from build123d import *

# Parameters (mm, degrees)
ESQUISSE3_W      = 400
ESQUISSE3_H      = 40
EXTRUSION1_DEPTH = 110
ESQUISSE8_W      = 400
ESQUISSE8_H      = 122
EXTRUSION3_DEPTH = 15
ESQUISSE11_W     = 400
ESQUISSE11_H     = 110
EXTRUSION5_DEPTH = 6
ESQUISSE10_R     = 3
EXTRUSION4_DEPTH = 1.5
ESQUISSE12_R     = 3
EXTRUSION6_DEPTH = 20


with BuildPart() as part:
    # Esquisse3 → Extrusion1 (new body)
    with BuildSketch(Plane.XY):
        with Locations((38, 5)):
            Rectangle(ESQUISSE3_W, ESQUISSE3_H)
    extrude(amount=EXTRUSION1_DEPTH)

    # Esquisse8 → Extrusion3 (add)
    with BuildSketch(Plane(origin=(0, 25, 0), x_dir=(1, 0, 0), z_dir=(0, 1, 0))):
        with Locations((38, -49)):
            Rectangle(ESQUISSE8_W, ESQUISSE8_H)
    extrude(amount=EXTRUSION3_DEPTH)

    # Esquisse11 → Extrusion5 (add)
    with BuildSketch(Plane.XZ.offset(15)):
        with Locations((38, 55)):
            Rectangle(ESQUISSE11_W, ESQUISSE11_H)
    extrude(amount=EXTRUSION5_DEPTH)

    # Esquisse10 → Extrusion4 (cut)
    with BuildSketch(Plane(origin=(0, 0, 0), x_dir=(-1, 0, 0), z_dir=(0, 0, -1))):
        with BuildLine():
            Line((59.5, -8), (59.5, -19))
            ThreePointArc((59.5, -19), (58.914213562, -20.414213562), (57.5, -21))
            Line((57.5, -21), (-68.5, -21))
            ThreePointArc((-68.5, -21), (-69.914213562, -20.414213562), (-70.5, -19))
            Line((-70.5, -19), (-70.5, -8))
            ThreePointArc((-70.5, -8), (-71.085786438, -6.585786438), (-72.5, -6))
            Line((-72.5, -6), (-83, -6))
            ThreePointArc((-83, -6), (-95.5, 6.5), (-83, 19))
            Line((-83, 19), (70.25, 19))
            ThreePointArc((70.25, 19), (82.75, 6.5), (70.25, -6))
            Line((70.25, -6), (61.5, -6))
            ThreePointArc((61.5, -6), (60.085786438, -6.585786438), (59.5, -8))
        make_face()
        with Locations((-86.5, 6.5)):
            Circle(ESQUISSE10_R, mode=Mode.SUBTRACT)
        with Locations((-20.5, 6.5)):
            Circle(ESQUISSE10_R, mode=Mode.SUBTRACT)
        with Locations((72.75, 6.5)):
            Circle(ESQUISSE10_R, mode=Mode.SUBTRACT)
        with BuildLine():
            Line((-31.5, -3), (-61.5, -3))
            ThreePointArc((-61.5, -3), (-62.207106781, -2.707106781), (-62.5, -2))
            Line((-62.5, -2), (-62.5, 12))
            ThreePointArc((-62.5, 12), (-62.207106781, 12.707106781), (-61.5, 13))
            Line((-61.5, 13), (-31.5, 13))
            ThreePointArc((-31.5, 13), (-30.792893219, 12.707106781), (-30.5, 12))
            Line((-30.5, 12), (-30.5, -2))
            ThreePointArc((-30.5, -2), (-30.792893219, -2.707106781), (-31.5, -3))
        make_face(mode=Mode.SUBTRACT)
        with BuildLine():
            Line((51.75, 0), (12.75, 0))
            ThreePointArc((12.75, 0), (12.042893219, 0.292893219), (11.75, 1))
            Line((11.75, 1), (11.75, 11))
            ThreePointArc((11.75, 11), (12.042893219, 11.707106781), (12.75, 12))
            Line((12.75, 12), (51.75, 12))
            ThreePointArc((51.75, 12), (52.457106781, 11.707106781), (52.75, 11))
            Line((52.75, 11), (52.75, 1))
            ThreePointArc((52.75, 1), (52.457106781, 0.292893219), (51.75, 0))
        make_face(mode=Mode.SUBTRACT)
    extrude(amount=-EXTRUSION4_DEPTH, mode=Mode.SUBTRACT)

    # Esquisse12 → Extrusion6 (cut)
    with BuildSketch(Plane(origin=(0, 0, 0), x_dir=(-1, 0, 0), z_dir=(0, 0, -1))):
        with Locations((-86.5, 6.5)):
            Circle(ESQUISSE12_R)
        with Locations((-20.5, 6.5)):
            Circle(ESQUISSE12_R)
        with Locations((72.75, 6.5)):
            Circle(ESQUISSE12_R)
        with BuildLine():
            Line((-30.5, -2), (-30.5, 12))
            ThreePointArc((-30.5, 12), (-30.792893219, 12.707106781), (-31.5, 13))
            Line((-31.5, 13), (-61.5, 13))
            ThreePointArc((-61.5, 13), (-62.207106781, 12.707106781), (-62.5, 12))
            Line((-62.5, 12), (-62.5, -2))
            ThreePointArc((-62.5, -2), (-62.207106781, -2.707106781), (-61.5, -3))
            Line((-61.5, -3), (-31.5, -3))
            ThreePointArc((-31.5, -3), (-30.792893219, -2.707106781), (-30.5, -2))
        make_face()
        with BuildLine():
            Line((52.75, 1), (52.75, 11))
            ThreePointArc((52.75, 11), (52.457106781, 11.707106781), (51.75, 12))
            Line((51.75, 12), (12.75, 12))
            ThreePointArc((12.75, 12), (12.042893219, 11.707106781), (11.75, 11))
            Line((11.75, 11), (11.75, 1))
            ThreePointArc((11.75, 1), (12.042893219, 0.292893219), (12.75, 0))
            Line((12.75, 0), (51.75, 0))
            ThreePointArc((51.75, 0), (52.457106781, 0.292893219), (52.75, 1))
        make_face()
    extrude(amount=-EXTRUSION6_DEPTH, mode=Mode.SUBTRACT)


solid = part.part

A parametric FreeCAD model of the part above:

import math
import FreeCAD as App
import Part
import Sketcher
Q = App.Units.Quantity


def add_polygon(sketch, points):
    """Adds a closed chain of lines whose ends are joined by coincident constraints."""
    first, n = sketch.GeometryCount, len(points)
    for a, b in zip(points, points[1:] + points[:1]):
        sketch.addGeometry(Part.LineSegment(App.Vector(*a, 0), App.Vector(*b, 0)), False)
    for i in range(n):
        sketch.addConstraint(Sketcher.Constraint("Coincident", first + i, 2, first + (i + 1) % n, 1))

doc = App.newDocument("Part")
body = doc.addObject("PartDesign::Body", "Body")

# Sketch on XY plane
sketch1 = body.newObject("Sketcher::SketchObject", "Sketch")
sketch1.AttachmentSupport = (doc.getObject("XY_Plane"), [""])
sketch1.MapMode = "FlatFace"
add_polygon(sketch1, [(-162, 25), (-162, -15), (238, -15), (238, 25)])  # lines 0-3
sketch1.addConstraint([
    Sketcher.Constraint("Vertical", 0),
    Sketcher.Constraint("Horizontal", 1),
    Sketcher.Constraint("Vertical", 2),
    Sketcher.Constraint("Horizontal", 3),
    Sketcher.Constraint("DistanceX", 1, 1, 1, 2, Q("400 mm")),
    Sketcher.Constraint("DistanceY", 0, 2, 0, 1, Q("40 mm")),
    Sketcher.Constraint("DistanceX", 0, 2, -1, 1, Q("162 mm")),
    Sketcher.Constraint("DistanceY", 0, 2, -1, 1, Q("15 mm")),
])
pad1 = body.newObject("PartDesign::Pad", "Pad")
pad1.Profile = sketch1
pad1.Length = 110

# Sketch on XZ plane
sketch2 = body.newObject("Sketcher::SketchObject", "Sketch001")
sketch2.AttachmentSupport = (doc.getObject("XZ_Plane"), [""])
sketch2.MapMode = "FlatFace"
sketch2.AttachmentOffset = App.Placement(App.Vector(0, 0, -25), App.Rotation())
add_polygon(sketch2, [(-162, -12), (-162, 110), (238, 110), (238, -12)])  # lines 0-3
sketch2.addConstraint([
    Sketcher.Constraint("Vertical", 0),
    Sketcher.Constraint("Horizontal", 1),
    Sketcher.Constraint("Vertical", 2),
    Sketcher.Constraint("Horizontal", 3),
    Sketcher.Constraint("DistanceX", 1, 1, 1, 2, Q("400 mm")),
    Sketcher.Constraint("DistanceY", 0, 1, 0, 2, Q("122 mm")),
    Sketcher.Constraint("DistanceX", 0, 2, -1, 1, Q("162 mm")),
    Sketcher.Constraint("DistanceY", -1, 1, 0, 2, Q("110 mm")),
])
pad2 = body.newObject("PartDesign::Pad", "Pad001")
pad2.Profile = sketch2
pad2.Length = 15
pad2.Reversed = True

# Sketch on XZ plane
sketch3 = body.newObject("Sketcher::SketchObject", "Sketch002")
sketch3.AttachmentSupport = (doc.getObject("XZ_Plane"), [""])
sketch3.MapMode = "FlatFace"
sketch3.AttachmentOffset = App.Placement(App.Vector(0, 0, 15), App.Rotation())
add_polygon(sketch3, [(-162, 110), (-162, 0), (238, 0), (238, 110)])  # lines 0-3
sketch3.addConstraint([
    Sketcher.Constraint("Vertical", 0),
    Sketcher.Constraint("Horizontal", 1),
    Sketcher.Constraint("Vertical", 2),
    Sketcher.Constraint("Horizontal", 3),
    Sketcher.Constraint("PointOnObject", 0, 2, -1),
    Sketcher.Constraint("DistanceX", 1, 1, 1, 2, Q("400 mm")),
    Sketcher.Constraint("DistanceY", 0, 2, 0, 1, Q("110 mm")),
    Sketcher.Constraint("DistanceX", 0, 2, -1, 1, Q("162 mm")),
])
pad3 = body.newObject("PartDesign::Pad", "Pad002")
pad3.Profile = sketch3
pad3.Length = 6

# Sketch on XY plane
sketch4 = body.newObject("Sketcher::SketchObject", "Sketch003")
sketch4.AttachmentSupport = (doc.getObject("XY_Plane"), [""])
sketch4.MapMode = "FlatFace"
sketch4.addGeometry([
    Part.LineSegment(App.Vector(-59.5, -19, 0), App.Vector(-59.5, -8, 0)),  # 0
    Part.ArcOfCircle(Part.Circle(App.Vector(-61.5, -8, 0), App.Vector(0, 0, 1), 2), math.radians(0), math.radians(90)),  # 1
    Part.LineSegment(App.Vector(-61.5, -6, 0), App.Vector(-70.25, -6, 0)),  # 2
    Part.ArcOfCircle(Part.Circle(App.Vector(-70.25, 6.5, 0), App.Vector(0, 0, 1), 12.5), math.radians(90), math.radians(270)),  # 3
    Part.LineSegment(App.Vector(-70.25, 19, 0), App.Vector(83, 19, 0)),  # 4
    Part.ArcOfCircle(Part.Circle(App.Vector(83, 6.5, 0), App.Vector(0, 0, 1), 12.5), math.radians(-90), math.radians(90)),  # 5
    Part.LineSegment(App.Vector(83, -6, 0), App.Vector(72.5, -6, 0)),  # 6
    Part.ArcOfCircle(Part.Circle(App.Vector(72.5, -8, 0), App.Vector(0, 0, 1), 2), math.radians(90), math.radians(180)),  # 7
    Part.LineSegment(App.Vector(70.5, -8, 0), App.Vector(70.5, -19, 0)),  # 8
    Part.ArcOfCircle(Part.Circle(App.Vector(68.5, -19, 0), App.Vector(0, 0, 1), 2), math.radians(-90), math.radians(0)),  # 9
    Part.LineSegment(App.Vector(68.5, -21, 0), App.Vector(-57.5, -21, 0)),  # 10
    Part.ArcOfCircle(Part.Circle(App.Vector(-57.5, -19, 0), App.Vector(0, 0, 1), 2), math.radians(-180), math.radians(-90)),  # 11
    Part.Circle(App.Vector(-72.75, 6.5, 0), App.Vector(0, 0, 1), 3),  # 12
    Part.LineSegment(App.Vector(-51.75, 0, 0), App.Vector(-12.75, 0, 0)),  # 13
    Part.ArcOfCircle(Part.Circle(App.Vector(-12.75, 1, 0), App.Vector(0, 0, 1), 1), math.radians(-90), math.radians(0)),  # 14
    Part.LineSegment(App.Vector(-11.75, 1, 0), App.Vector(-11.75, 11, 0)),  # 15
    Part.ArcOfCircle(Part.Circle(App.Vector(-12.75, 11, 0), App.Vector(0, 0, 1), 1), math.radians(0), math.radians(90)),  # 16
    Part.LineSegment(App.Vector(-12.75, 12, 0), App.Vector(-51.75, 12, 0)),  # 17
    Part.ArcOfCircle(Part.Circle(App.Vector(-51.75, 11, 0), App.Vector(0, 0, 1), 1), math.radians(90), math.radians(180)),  # 18
    Part.LineSegment(App.Vector(-52.75, 11, 0), App.Vector(-52.75, 1, 0)),  # 19
    Part.ArcOfCircle(Part.Circle(App.Vector(-51.75, 1, 0), App.Vector(0, 0, 1), 1), math.radians(-180), math.radians(-90)),  # 20
    Part.Circle(App.Vector(20.5, 6.5, 0), App.Vector(0, 0, 1), 3),  # 21
    Part.LineSegment(App.Vector(31.5, -3, 0), App.Vector(61.5, -3, 0)),  # 22
    Part.ArcOfCircle(Part.Circle(App.Vector(61.5, -2, 0), App.Vector(0, 0, 1), 1), math.radians(-90), math.radians(0)),  # 23
    Part.LineSegment(App.Vector(62.5, -2, 0), App.Vector(62.5, 12, 0)),  # 24
    Part.ArcOfCircle(Part.Circle(App.Vector(61.5, 12, 0), App.Vector(0, 0, 1), 1), math.radians(0), math.radians(90)),  # 25
    Part.LineSegment(App.Vector(61.5, 13, 0), App.Vector(31.5, 13, 0)),  # 26
    Part.ArcOfCircle(Part.Circle(App.Vector(31.5, 12, 0), App.Vector(0, 0, 1), 1), math.radians(90), math.radians(180)),  # 27
    Part.LineSegment(App.Vector(30.5, 12, 0), App.Vector(30.5, -2, 0)),  # 28
    Part.ArcOfCircle(Part.Circle(App.Vector(31.5, -2, 0), App.Vector(0, 0, 1), 1), math.radians(-180), math.radians(-90)),  # 29
    Part.Circle(App.Vector(86.5, 6.5, 0), App.Vector(0, 0, 1), 3),  # 30
], False)
sketch4.addConstraint([
    Sketcher.Constraint("Tangent", 0, 2, 1, 1),
    Sketcher.Constraint("Tangent", 1, 2, 2, 1),
    Sketcher.Constraint("Tangent", 2, 2, 3, 2),
    Sketcher.Constraint("Tangent", 3, 1, 4, 1),
    Sketcher.Constraint("Tangent", 4, 2, 5, 2),
    Sketcher.Constraint("Tangent", 5, 1, 6, 1),
    Sketcher.Constraint("Tangent", 6, 2, 7, 1),
    Sketcher.Constraint("Tangent", 7, 2, 8, 1),
    Sketcher.Constraint("Tangent", 8, 2, 9, 2),
    Sketcher.Constraint("Tangent", 9, 1, 10, 1),
    Sketcher.Constraint("Tangent", 10, 2, 11, 2),
    Sketcher.Constraint("Tangent", 11, 1, 0, 1),
    Sketcher.Constraint("Tangent", 13, 2, 14, 1),
    Sketcher.Constraint("Tangent", 14, 2, 15, 1),
    Sketcher.Constraint("Tangent", 15, 2, 16, 1),
    Sketcher.Constraint("Tangent", 16, 2, 17, 1),
    Sketcher.Constraint("Tangent", 17, 2, 18, 1),
    Sketcher.Constraint("Tangent", 18, 2, 19, 1),
    Sketcher.Constraint("Tangent", 19, 2, 20, 1),
    Sketcher.Constraint("Tangent", 20, 2, 13, 1),
    Sketcher.Constraint("Tangent", 22, 2, 23, 1),
    Sketcher.Constraint("Tangent", 23, 2, 24, 1),
    Sketcher.Constraint("Tangent", 24, 2, 25, 1),
    Sketcher.Constraint("Tangent", 25, 2, 26, 1),
    Sketcher.Constraint("Tangent", 26, 2, 27, 1),
    Sketcher.Constraint("Tangent", 27, 2, 28, 1),
    Sketcher.Constraint("Tangent", 28, 2, 29, 1),
    Sketcher.Constraint("Tangent", 29, 2, 22, 1),
    Sketcher.Constraint("Vertical", 0),
    Sketcher.Constraint("Horizontal", 2),
    Sketcher.Constraint("Horizontal", 4),
    Sketcher.Constraint("Horizontal", 6),
    Sketcher.Constraint("Vertical", 8),
    Sketcher.Constraint("Horizontal", 10),
    Sketcher.Constraint("Horizontal", 13),
    Sketcher.Constraint("Vertical", 15),
    Sketcher.Constraint("Horizontal", 17),
    Sketcher.Constraint("Vertical", 19),
    Sketcher.Constraint("Horizontal", 22),
    Sketcher.Constraint("Vertical", 24),
    Sketcher.Constraint("Horizontal", 26),
    Sketcher.Constraint("Vertical", 28),
    Sketcher.Constraint("Equal", 3, 5),
    Sketcher.Constraint("Equal", 1, 7),
    Sketcher.Constraint("Equal", 7, 9),
    Sketcher.Constraint("Equal", 9, 11),
    Sketcher.Constraint("Equal", 14, 16),
    Sketcher.Constraint("Equal", 16, 18),
    Sketcher.Constraint("Equal", 18, 20),
    Sketcher.Constraint("Equal", 12, 21),
    Sketcher.Constraint("Equal", 20, 23),
    Sketcher.Constraint("Equal", 23, 25),
    Sketcher.Constraint("Equal", 25, 27),
    Sketcher.Constraint("Equal", 27, 29),
    Sketcher.Constraint("Equal", 21, 30),
    Sketcher.Constraint("PointOnObject", 13, 2, -1),
    Sketcher.Constraint("Horizontal", 5, 3, 12, 3),
    Sketcher.Constraint("Horizontal", 12, 3, 21, 3),
    Sketcher.Constraint("Horizontal", 21, 3, 30, 3),
    Sketcher.Constraint("Horizontal", 27, 3, 16, 2),
    Sketcher.Constraint("Diameter", 12, Q("6 mm")),
    Sketcher.Constraint("Radius", 1, Q("2 mm")),
    Sketcher.Constraint("Radius", 14, Q("1 mm")),
    Sketcher.Constraint("Radius", 3, Q("12.5 mm")),
    Sketcher.Constraint("DistanceX", 10, 2, 10, 1, Q("126 mm")),
    Sketcher.Constraint("DistanceX", 13, 1, 13, 2, Q("39 mm")),
    Sketcher.Constraint("DistanceX", 22, 1, 22, 2, Q("30 mm")),
    Sketcher.Constraint("DistanceY", 0, 1, 0, 2, Q("11 mm")),
    Sketcher.Constraint("DistanceY", 15, 1, 15, 2, Q("10 mm")),
    Sketcher.Constraint("DistanceY", 24, 1, 24, 2, Q("14 mm")),
    Sketcher.Constraint("DistanceX", 6, 2, 6, 1, Q("10.5 mm")),
    Sketcher.Constraint("DistanceY", 1, 3, -1, 1, Q("8 mm")),
    Sketcher.Constraint("DistanceX", -1, 1, 5, 3, Q("83 mm")),
    Sketcher.Constraint("DistanceX", 12, 3, 14, 3, Q("60 mm")),
    Sketcher.Constraint("DistanceX", 21, 3, 7, 3, Q("52 mm")),
    Sketcher.Constraint("DistanceX", 23, 3, 7, 3, Q("11 mm")),
    Sketcher.Constraint("DistanceX", 7, 3, 30, 3, Q("14 mm")),
    Sketcher.Constraint("DistanceX", 2, 2, 2, 1, Q("8.75 mm")),
    Sketcher.Constraint("DistanceX", 12, 3, 3, 3, Q("2.5 mm")),
])
pocket1 = body.newObject("PartDesign::Pocket", "Pocket")
pocket1.Profile = sketch4
pocket1.Length = 1.5
pocket1.Reversed = True

# Sketch on XY plane
sketch5 = body.newObject("Sketcher::SketchObject", "Sketch004")
sketch5.AttachmentSupport = (doc.getObject("XY_Plane"), [""])
sketch5.MapMode = "FlatFace"
sketch5.addGeometry([
    Part.Circle(App.Vector(86.5, 6.5, 0), App.Vector(0, 0, 1), 3),  # 0
    Part.Circle(App.Vector(20.5, 6.5, 0), App.Vector(0, 0, 1), 3),  # 1
    Part.Circle(App.Vector(-72.75, 6.5, 0), App.Vector(0, 0, 1), 3),  # 2
    Part.LineSegment(App.Vector(30.5, -2, 0), App.Vector(30.5, 12, 0)),  # 3
    Part.ArcOfCircle(Part.Circle(App.Vector(31.5, 12, 0), App.Vector(0, 0, 1), 1), math.radians(90), math.radians(180)),  # 4
    Part.LineSegment(App.Vector(31.5, 13, 0), App.Vector(61.5, 13, 0)),  # 5
    Part.ArcOfCircle(Part.Circle(App.Vector(61.5, 12, 0), App.Vector(0, 0, 1), 1), math.radians(0), math.radians(90)),  # 6
    Part.LineSegment(App.Vector(62.5, 12, 0), App.Vector(62.5, -2, 0)),  # 7
    Part.ArcOfCircle(Part.Circle(App.Vector(61.5, -2, 0), App.Vector(0, 0, 1), 1), math.radians(-90), math.radians(0)),  # 8
    Part.LineSegment(App.Vector(61.5, -3, 0), App.Vector(31.5, -3, 0)),  # 9
    Part.ArcOfCircle(Part.Circle(App.Vector(31.5, -2, 0), App.Vector(0, 0, 1), 1), math.radians(-180), math.radians(-90)),  # 10
    Part.LineSegment(App.Vector(-52.75, 1, 0), App.Vector(-52.75, 11, 0)),  # 11
    Part.ArcOfCircle(Part.Circle(App.Vector(-51.75, 11, 0), App.Vector(0, 0, 1), 1), math.radians(90), math.radians(180)),  # 12
    Part.LineSegment(App.Vector(-51.75, 12, 0), App.Vector(-12.75, 12, 0)),  # 13
    Part.ArcOfCircle(Part.Circle(App.Vector(-12.75, 11, 0), App.Vector(0, 0, 1), 1), math.radians(0), math.radians(90)),  # 14
    Part.LineSegment(App.Vector(-11.75, 11, 0), App.Vector(-11.75, 1, 0)),  # 15
    Part.ArcOfCircle(Part.Circle(App.Vector(-12.75, 1, 0), App.Vector(0, 0, 1), 1), math.radians(-90), math.radians(0)),  # 16
    Part.LineSegment(App.Vector(-12.75, 0, 0), App.Vector(-51.75, 0, 0)),  # 17
    Part.ArcOfCircle(Part.Circle(App.Vector(-51.75, 1, 0), App.Vector(0, 0, 1), 1), math.radians(-180), math.radians(-90)),  # 18
], False)
sketch5.addConstraint([
    Sketcher.Constraint("Tangent", 3, 2, 4, 2),
    Sketcher.Constraint("Tangent", 4, 1, 5, 1),
    Sketcher.Constraint("Tangent", 5, 2, 6, 2),
    Sketcher.Constraint("Tangent", 6, 1, 7, 1),
    Sketcher.Constraint("Tangent", 7, 2, 8, 2),
    Sketcher.Constraint("Tangent", 8, 1, 9, 1),
    Sketcher.Constraint("Tangent", 9, 2, 10, 2),
    Sketcher.Constraint("Tangent", 10, 1, 3, 1),
    Sketcher.Constraint("Tangent", 11, 2, 12, 2),
    Sketcher.Constraint("Tangent", 12, 1, 13, 1),
    Sketcher.Constraint("Tangent", 13, 2, 14, 2),
    Sketcher.Constraint("Tangent", 14, 1, 15, 1),
    Sketcher.Constraint("Tangent", 15, 2, 16, 2),
    Sketcher.Constraint("Tangent", 16, 1, 17, 1),
    Sketcher.Constraint("Tangent", 17, 2, 18, 2),
    Sketcher.Constraint("Tangent", 18, 1, 11, 1),
    Sketcher.Constraint("Vertical", 3),
    Sketcher.Constraint("Horizontal", 5),
    Sketcher.Constraint("Vertical", 7),
    Sketcher.Constraint("Horizontal", 9),
    Sketcher.Constraint("Vertical", 11),
    Sketcher.Constraint("Horizontal", 13),
    Sketcher.Constraint("Vertical", 15),
    Sketcher.Constraint("Horizontal", 17),
    Sketcher.Constraint("Equal", 0, 1),
    Sketcher.Constraint("Equal", 1, 2),
    Sketcher.Constraint("Equal", 4, 6),
    Sketcher.Constraint("Equal", 6, 8),
    Sketcher.Constraint("Equal", 8, 10),
    Sketcher.Constraint("Equal", 10, 12),
    Sketcher.Constraint("Equal", 12, 14),
    Sketcher.Constraint("Equal", 14, 16),
    Sketcher.Constraint("Equal", 16, 18),
    Sketcher.Constraint("PointOnObject", 16, 1, -1),
    Sketcher.Constraint("Horizontal", 0, 3, 1, 3),
    Sketcher.Constraint("Horizontal", 1, 3, 2, 3),
    Sketcher.Constraint("Horizontal", 6, 1, 12, 1),
    Sketcher.Constraint("Diameter", 0, Q("6 mm")),
    Sketcher.Constraint("Radius", 4, Q("1 mm")),
    Sketcher.Constraint("DistanceX", 5, 1, 5, 2, Q("30 mm")),
    Sketcher.Constraint("DistanceX", 13, 1, 13, 2, Q("39 mm")),
    Sketcher.Constraint("DistanceY", 3, 1, 3, 2, Q("14 mm")),
    Sketcher.Constraint("DistanceY", 11, 1, 11, 2, Q("10 mm")),
    Sketcher.Constraint("DistanceX", 1, 3, 0, 3, Q("66 mm")),
    Sketcher.Constraint("DistanceX", 1, 3, 4, 3, Q("11 mm")),
    Sketcher.Constraint("DistanceX", 2, 3, 12, 3, Q("21 mm")),
    Sketcher.Constraint("DistanceX", -1, 1, 0, 3, Q("86.5 mm")),
    Sketcher.Constraint("DistanceY", -1, 1, 0, 3, Q("6.5 mm")),
    Sketcher.Constraint("DistanceX", 2, 3, -1, 1, Q("72.75 mm")),
])
pocket2 = body.newObject("PartDesign::Pocket", "Pocket001")
pocket2.Profile = sketch5
pocket2.Length = 20
pocket2.Reversed = True

doc.recompute()
